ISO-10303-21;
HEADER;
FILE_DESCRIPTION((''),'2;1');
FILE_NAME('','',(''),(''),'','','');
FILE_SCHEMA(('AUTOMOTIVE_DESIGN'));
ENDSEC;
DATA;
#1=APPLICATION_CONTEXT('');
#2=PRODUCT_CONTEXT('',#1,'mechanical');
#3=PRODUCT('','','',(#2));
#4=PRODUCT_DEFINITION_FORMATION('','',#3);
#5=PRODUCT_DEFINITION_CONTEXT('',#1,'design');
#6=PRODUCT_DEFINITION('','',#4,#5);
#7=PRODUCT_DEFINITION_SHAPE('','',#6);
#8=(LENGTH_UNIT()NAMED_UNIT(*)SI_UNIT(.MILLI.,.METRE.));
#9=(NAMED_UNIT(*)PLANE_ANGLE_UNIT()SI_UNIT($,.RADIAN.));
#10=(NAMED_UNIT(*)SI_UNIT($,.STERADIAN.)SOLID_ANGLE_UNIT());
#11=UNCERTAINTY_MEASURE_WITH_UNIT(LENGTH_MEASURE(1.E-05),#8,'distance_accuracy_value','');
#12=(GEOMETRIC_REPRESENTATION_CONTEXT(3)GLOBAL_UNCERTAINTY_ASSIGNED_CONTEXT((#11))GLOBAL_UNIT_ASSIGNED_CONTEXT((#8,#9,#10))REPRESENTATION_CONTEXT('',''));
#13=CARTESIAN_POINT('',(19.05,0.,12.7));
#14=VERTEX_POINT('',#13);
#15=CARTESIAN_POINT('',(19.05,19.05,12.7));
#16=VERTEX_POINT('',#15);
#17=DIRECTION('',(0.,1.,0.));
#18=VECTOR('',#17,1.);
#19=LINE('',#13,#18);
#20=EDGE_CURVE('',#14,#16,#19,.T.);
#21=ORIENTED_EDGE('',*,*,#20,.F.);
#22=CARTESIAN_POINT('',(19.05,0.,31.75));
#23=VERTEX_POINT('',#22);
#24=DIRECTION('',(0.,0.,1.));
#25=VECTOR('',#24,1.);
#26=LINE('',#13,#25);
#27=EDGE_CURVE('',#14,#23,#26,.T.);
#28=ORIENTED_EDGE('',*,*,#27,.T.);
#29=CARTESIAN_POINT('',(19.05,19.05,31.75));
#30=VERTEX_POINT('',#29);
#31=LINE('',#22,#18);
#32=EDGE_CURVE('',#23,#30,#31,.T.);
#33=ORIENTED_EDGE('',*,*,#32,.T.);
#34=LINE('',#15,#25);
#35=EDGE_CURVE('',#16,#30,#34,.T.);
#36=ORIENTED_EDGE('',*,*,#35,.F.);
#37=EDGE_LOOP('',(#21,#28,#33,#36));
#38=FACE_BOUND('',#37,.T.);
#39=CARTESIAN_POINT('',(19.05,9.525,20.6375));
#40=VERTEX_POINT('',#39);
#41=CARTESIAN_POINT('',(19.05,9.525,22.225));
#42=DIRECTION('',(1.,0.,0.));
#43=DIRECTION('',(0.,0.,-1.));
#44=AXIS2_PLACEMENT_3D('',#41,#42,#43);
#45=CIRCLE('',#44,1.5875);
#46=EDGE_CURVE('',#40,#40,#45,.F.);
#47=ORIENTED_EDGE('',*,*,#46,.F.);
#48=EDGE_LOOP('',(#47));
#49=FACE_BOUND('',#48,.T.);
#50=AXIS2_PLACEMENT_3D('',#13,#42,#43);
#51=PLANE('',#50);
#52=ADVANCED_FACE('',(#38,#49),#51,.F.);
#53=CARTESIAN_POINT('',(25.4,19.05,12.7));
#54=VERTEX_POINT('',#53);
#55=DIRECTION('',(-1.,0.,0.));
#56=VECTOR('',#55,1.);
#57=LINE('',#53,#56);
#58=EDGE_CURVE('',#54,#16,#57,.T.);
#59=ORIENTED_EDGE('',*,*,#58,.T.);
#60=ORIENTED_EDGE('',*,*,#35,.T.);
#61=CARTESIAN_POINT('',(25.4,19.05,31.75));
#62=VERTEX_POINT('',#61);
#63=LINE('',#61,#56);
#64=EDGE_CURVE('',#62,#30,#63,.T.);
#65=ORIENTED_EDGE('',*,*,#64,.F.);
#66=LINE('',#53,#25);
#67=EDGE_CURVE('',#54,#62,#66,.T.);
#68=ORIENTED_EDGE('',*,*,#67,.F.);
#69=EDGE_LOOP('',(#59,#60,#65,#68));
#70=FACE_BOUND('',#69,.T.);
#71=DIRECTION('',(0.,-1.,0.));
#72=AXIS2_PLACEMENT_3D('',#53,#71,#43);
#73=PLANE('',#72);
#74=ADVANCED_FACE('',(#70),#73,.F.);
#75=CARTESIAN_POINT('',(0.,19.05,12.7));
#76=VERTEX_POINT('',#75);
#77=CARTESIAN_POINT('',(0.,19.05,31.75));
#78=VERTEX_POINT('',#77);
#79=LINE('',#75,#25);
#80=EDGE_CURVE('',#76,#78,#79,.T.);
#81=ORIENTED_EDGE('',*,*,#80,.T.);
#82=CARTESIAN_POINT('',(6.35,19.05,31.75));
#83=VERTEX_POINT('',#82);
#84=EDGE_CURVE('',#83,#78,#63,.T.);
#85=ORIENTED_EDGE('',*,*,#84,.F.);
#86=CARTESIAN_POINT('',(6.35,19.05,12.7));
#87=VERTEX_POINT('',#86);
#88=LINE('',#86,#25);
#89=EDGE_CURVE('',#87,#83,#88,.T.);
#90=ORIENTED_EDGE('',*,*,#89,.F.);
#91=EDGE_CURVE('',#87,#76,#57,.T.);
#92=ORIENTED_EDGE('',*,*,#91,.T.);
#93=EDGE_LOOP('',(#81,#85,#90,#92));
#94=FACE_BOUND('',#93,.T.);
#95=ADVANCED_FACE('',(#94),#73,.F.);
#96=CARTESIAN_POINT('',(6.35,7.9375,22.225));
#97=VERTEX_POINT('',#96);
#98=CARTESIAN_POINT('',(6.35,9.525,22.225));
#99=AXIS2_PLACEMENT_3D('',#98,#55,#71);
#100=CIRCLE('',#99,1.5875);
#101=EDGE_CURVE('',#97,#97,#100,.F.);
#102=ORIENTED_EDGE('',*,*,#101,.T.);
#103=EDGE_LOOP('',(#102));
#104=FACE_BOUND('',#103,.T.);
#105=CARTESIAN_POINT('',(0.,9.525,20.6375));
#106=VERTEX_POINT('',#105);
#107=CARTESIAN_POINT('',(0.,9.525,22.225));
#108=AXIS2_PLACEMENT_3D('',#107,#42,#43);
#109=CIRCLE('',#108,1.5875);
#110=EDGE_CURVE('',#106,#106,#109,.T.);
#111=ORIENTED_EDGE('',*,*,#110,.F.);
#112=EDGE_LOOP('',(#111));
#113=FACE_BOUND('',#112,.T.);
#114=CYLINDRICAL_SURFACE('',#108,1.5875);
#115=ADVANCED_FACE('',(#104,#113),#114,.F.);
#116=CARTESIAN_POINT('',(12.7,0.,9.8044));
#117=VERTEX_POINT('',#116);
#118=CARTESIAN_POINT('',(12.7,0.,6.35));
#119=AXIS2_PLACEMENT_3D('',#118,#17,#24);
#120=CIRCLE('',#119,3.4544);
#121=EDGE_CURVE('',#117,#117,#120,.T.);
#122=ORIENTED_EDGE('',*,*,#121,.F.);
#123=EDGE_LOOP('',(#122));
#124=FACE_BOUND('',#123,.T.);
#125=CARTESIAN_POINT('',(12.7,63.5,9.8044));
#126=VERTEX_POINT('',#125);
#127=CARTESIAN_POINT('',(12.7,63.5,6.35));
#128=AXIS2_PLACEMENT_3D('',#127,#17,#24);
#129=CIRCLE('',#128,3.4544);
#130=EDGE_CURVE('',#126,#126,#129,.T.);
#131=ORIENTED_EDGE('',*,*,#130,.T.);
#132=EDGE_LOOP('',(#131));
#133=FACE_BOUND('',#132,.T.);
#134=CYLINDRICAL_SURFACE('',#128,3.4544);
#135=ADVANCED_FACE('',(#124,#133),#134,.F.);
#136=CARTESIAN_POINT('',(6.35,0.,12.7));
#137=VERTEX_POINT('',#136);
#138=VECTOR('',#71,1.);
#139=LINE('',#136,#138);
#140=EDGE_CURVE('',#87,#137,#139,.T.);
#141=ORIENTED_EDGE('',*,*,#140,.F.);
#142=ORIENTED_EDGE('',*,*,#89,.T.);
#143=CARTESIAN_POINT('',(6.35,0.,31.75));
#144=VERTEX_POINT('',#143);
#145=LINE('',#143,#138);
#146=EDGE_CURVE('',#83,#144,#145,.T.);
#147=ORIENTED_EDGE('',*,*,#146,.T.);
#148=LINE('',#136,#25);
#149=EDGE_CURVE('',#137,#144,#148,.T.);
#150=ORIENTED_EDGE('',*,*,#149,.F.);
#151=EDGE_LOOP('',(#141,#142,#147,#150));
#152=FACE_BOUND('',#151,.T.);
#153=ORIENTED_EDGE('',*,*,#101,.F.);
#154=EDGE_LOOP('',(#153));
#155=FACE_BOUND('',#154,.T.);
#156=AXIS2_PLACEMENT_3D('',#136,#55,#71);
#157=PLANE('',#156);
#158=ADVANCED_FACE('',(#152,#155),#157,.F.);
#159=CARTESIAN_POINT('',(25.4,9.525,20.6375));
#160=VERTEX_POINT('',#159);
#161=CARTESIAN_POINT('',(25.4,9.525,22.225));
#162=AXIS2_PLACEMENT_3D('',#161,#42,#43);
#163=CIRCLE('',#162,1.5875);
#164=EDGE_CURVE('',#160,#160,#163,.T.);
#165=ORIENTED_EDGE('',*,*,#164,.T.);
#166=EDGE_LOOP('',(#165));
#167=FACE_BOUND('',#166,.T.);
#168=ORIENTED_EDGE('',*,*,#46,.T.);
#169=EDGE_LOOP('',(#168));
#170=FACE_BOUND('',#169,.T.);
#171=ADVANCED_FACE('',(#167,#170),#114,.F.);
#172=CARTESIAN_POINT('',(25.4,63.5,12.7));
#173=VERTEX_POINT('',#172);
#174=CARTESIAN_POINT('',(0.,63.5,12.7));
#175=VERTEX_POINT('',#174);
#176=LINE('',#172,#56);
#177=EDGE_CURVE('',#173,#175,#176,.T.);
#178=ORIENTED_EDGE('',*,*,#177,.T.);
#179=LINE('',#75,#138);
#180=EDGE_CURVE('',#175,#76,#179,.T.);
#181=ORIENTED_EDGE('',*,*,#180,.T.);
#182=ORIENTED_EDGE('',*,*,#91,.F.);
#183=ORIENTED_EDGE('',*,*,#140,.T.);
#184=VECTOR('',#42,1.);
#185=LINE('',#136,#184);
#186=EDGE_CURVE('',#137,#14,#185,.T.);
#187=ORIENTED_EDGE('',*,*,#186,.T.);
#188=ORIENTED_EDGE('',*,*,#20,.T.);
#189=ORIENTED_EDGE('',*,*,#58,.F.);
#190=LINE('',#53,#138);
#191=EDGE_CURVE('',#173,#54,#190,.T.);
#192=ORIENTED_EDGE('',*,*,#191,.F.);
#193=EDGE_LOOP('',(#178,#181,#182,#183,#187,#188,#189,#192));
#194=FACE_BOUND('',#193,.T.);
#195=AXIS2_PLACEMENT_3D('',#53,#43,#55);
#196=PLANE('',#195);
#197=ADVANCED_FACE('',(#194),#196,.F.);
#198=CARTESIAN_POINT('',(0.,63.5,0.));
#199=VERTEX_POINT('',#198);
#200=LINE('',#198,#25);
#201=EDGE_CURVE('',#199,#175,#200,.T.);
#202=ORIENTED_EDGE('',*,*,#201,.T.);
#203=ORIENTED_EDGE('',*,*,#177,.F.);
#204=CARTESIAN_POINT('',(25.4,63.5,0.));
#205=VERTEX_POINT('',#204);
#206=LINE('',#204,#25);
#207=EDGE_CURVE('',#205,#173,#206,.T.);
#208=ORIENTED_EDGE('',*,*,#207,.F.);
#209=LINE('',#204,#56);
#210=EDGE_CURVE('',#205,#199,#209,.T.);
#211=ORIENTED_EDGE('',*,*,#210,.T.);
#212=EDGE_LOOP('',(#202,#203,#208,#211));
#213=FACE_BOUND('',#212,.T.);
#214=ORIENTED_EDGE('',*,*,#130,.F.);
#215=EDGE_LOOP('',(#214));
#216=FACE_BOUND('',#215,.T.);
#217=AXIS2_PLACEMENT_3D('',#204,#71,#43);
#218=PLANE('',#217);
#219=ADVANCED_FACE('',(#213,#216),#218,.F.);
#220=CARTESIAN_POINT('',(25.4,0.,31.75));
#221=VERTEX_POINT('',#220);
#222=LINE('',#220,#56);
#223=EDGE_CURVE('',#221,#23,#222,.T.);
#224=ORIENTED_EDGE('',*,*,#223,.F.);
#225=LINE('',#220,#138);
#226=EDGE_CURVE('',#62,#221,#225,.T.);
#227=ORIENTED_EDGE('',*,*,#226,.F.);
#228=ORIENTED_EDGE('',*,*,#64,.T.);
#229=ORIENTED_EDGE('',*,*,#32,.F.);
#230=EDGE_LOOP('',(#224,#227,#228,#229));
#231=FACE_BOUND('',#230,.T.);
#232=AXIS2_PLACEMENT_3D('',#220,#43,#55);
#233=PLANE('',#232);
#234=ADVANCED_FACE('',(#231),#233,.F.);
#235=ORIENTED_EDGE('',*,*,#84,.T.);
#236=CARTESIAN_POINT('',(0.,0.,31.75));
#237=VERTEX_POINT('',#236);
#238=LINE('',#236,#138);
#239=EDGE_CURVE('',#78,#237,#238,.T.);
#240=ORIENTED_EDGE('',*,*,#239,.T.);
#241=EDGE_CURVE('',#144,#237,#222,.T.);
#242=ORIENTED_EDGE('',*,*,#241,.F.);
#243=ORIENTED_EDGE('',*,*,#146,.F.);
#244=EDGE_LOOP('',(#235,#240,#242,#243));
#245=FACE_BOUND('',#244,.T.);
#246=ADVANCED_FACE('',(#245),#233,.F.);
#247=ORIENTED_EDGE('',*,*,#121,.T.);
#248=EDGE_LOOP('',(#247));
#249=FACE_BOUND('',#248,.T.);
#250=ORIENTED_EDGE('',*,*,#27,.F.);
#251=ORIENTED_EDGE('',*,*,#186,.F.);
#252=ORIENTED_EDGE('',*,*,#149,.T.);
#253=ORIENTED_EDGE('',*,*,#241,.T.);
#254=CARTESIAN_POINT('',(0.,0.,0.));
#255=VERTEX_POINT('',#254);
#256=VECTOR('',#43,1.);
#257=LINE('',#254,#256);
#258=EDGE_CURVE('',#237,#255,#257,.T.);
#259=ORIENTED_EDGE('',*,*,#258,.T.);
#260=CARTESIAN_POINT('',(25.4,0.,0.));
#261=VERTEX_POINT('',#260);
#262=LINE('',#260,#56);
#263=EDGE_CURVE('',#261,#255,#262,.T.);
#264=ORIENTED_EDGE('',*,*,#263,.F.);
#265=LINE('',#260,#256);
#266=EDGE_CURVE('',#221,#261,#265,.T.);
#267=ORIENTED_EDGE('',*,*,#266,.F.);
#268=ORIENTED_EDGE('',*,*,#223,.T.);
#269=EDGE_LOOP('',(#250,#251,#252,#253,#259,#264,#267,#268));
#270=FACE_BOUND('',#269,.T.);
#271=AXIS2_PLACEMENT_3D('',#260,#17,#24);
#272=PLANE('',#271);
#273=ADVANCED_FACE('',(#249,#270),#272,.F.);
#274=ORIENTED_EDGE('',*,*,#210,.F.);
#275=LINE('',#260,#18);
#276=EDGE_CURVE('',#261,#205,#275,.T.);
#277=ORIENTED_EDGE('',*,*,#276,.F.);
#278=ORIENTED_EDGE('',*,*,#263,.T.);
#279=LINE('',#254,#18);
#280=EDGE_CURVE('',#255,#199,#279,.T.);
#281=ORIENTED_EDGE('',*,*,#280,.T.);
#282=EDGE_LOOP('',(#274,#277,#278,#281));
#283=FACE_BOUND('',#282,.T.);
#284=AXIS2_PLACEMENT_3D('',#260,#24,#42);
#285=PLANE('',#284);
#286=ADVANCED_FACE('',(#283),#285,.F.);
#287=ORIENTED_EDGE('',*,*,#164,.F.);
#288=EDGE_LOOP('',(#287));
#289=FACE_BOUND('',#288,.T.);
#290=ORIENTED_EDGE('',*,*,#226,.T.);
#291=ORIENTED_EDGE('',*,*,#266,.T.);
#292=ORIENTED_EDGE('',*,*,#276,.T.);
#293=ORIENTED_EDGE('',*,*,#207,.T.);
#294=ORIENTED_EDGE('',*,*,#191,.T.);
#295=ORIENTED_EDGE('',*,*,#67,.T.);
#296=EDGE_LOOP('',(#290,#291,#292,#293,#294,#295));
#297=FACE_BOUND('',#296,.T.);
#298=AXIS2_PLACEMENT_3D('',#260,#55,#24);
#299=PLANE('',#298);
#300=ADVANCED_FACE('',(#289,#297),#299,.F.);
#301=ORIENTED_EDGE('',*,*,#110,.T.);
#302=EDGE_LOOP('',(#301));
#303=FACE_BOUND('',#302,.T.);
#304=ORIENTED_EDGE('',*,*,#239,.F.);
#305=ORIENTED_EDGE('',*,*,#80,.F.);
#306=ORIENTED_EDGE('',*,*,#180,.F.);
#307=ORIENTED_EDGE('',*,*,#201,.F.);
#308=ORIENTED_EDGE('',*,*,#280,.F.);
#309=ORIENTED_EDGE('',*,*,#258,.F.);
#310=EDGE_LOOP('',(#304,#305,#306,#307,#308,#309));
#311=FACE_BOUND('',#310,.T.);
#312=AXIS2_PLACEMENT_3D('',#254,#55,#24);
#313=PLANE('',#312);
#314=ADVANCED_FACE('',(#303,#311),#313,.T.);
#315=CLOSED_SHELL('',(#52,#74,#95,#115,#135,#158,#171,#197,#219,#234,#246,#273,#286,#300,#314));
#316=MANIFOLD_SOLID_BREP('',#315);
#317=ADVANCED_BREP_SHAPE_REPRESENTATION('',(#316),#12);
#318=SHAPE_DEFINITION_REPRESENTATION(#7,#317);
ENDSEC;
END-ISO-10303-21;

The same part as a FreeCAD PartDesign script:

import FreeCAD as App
import Part
import Sketcher
from FreeCAD import Vector
Q = App.Units.Quantity


def add_polygon(sketch, points):
    """Adds a closed chain of lines whose ends are joined by coincident constraints."""
    first, n = sketch.GeometryCount, len(points)
    for a, b in zip(points, points[1:] + points[:1]):
        sketch.addGeometry(Part.LineSegment(App.Vector(*a, 0), App.Vector(*b, 0)), False)
    for i in range(n):
        sketch.addConstraint(Sketcher.Constraint("Coincident", first + i, 2, first + (i + 1) % n, 1))

doc = App.newDocument("Part")
body = doc.addObject("PartDesign::Body", "Body")

# Sketch on YZ plane
sketch1 = doc.addObject("Sketcher::SketchObject", "Sketch")
body.addObject(sketch1)
sketch1.AttachmentSupport = (doc.YZ_Plane, [""])
sketch1.MapMode = "FlatFace"
add_polygon(sketch1, [(0, 0), (63.5, 0), (63.5, 12.7), (19.05, 12.7), (19.05, 31.75), (0, 31.75)])  # lines 0-5
sketch1.addConstraint([
    Sketcher.Constraint("Horizontal", 0),
    Sketcher.Constraint("Vertical", 1),
    Sketcher.Constraint("Horizontal", 2),
    Sketcher.Constraint("Vertical", 3),
    Sketcher.Constraint("Horizontal", 4),
    Sketcher.Constraint("Vertical", 5),
    Sketcher.Constraint("Coincident", 5, 2, -1, 1),
    Sketcher.Constraint("Equal", 4, 3),
    Sketcher.Constraint("DistanceX", 0, 1, 0, 2, Q("2.5 in")),
    Sketcher.Constraint("DistanceY", 1, 1, 1, 2, Q("0.5 in")),
    Sketcher.Constraint("DistanceX", 2, 2, 2, 1, Q("1.75 in")),
])
pad1 = doc.addObject("PartDesign::Pad", "Pad")
body.addObject(pad1)
pad1.Profile = sketch1
pad1.Length = Q("1 in")

# Sketch on YZ plane
sketch2 = doc.addObject("Sketcher::SketchObject", "Sketch001")
body.addObject(sketch2)
sketch2.AttachmentSupport = (doc.YZ_Plane, [""])
sketch2.MapMode = "FlatFace"
sketch2.AttachmentOffset = App.Placement(Vector(0, 0, 1 * 25.4), App.Rotation())
sketch2.addGeometry(Part.Circle(Vector(9.525, 22.225, 0), Vector(0, 0, 1), 1.5875), False)
sketch2.addConstraint([
    Sketcher.Constraint("Diameter", 0, Q("0.125 in")),
    Sketcher.Constraint("DistanceX", -1, 1, 0, 3, Q("0.375 in")),
    Sketcher.Constraint("DistanceY", -1, 1, 0, 3, Q("0.875 in")),
])
pocket1 = doc.addObject("PartDesign::Pocket", "Pocket")
body.addObject(pocket1)
pocket1.Profile = sketch2
pocket1.Type = "ThroughAll"

# Sketch on XY plane
sketch3 = doc.addObject("Sketcher::SketchObject", "Sketch002")
body.addObject(sketch3)
sketch3.AttachmentSupport = (doc.XY_Plane, [""])
sketch3.MapMode = "FlatFace"
sketch3.AttachmentOffset = App.Placement(Vector(0, 0, 1.25 * 25.4), App.Rotation())
add_polygon(sketch3, [(6.35, 19.05), (6.35, 0), (19.05, 0), (19.05, 19.05)])  # lines 0-3
sketch3.addConstraint([
    Sketcher.Constraint("Vertical", 0),
    Sketcher.Constraint("Horizontal", 1),
    Sketcher.Constraint("Vertical", 2),
    Sketcher.Constraint("Horizontal", 3),
    Sketcher.Constraint("PointOnObject", 0, 2, -1),
    Sketcher.Constraint("DistanceX", 1, 1, 1, 2, Q("0.5 in")),
    Sketcher.Constraint("DistanceY", 0, 2, 0, 1, Q("0.75 in")),
    Sketcher.Constraint("DistanceX", -1, 1, 0, 2, Q("0.25 in")),
])
pocket2 = doc.addObject("PartDesign::Pocket", "Pocket001")
body.addObject(pocket2)
pocket2.Profile = sketch3
pocket2.Length = Q("0.75 in")

# Sketch on XZ plane
sketch4 = doc.addObject("Sketcher::SketchObject", "Sketch003")
body.addObject(sketch4)
sketch4.AttachmentSupport = (doc.XZ_Plane, [""])
sketch4.MapMode = "FlatFace"
sketch4.AttachmentOffset = App.Placement(Vector(0, 0, -2.5 * 25.4), App.Rotation())
sketch4.addGeometry(Part.Circle(Vector(12.7, 6.35, 0), Vector(0, 0, 1), 3.4544), False)
sketch4.addConstraint([
    Sketcher.Constraint("Diameter", 0, Q("0.272 in")),
    Sketcher.Constraint("DistanceX", -1, 1, 0, 3, Q("0.5 in")),
    Sketcher.Constraint("DistanceY", -1, 1, 0, 3, Q("0.25 in")),
])
doc.recompute()
hole = doc.addObject("PartDesign::Hole", "Hole")
body.addObject(hole)
hole.Profile = sketch4
hole.ThreadType = "None"
hole.Diameter = Q("0.272 in")
hole.DepthType = "ThroughAll"
hole.Reversed = True

doc.recompute()
